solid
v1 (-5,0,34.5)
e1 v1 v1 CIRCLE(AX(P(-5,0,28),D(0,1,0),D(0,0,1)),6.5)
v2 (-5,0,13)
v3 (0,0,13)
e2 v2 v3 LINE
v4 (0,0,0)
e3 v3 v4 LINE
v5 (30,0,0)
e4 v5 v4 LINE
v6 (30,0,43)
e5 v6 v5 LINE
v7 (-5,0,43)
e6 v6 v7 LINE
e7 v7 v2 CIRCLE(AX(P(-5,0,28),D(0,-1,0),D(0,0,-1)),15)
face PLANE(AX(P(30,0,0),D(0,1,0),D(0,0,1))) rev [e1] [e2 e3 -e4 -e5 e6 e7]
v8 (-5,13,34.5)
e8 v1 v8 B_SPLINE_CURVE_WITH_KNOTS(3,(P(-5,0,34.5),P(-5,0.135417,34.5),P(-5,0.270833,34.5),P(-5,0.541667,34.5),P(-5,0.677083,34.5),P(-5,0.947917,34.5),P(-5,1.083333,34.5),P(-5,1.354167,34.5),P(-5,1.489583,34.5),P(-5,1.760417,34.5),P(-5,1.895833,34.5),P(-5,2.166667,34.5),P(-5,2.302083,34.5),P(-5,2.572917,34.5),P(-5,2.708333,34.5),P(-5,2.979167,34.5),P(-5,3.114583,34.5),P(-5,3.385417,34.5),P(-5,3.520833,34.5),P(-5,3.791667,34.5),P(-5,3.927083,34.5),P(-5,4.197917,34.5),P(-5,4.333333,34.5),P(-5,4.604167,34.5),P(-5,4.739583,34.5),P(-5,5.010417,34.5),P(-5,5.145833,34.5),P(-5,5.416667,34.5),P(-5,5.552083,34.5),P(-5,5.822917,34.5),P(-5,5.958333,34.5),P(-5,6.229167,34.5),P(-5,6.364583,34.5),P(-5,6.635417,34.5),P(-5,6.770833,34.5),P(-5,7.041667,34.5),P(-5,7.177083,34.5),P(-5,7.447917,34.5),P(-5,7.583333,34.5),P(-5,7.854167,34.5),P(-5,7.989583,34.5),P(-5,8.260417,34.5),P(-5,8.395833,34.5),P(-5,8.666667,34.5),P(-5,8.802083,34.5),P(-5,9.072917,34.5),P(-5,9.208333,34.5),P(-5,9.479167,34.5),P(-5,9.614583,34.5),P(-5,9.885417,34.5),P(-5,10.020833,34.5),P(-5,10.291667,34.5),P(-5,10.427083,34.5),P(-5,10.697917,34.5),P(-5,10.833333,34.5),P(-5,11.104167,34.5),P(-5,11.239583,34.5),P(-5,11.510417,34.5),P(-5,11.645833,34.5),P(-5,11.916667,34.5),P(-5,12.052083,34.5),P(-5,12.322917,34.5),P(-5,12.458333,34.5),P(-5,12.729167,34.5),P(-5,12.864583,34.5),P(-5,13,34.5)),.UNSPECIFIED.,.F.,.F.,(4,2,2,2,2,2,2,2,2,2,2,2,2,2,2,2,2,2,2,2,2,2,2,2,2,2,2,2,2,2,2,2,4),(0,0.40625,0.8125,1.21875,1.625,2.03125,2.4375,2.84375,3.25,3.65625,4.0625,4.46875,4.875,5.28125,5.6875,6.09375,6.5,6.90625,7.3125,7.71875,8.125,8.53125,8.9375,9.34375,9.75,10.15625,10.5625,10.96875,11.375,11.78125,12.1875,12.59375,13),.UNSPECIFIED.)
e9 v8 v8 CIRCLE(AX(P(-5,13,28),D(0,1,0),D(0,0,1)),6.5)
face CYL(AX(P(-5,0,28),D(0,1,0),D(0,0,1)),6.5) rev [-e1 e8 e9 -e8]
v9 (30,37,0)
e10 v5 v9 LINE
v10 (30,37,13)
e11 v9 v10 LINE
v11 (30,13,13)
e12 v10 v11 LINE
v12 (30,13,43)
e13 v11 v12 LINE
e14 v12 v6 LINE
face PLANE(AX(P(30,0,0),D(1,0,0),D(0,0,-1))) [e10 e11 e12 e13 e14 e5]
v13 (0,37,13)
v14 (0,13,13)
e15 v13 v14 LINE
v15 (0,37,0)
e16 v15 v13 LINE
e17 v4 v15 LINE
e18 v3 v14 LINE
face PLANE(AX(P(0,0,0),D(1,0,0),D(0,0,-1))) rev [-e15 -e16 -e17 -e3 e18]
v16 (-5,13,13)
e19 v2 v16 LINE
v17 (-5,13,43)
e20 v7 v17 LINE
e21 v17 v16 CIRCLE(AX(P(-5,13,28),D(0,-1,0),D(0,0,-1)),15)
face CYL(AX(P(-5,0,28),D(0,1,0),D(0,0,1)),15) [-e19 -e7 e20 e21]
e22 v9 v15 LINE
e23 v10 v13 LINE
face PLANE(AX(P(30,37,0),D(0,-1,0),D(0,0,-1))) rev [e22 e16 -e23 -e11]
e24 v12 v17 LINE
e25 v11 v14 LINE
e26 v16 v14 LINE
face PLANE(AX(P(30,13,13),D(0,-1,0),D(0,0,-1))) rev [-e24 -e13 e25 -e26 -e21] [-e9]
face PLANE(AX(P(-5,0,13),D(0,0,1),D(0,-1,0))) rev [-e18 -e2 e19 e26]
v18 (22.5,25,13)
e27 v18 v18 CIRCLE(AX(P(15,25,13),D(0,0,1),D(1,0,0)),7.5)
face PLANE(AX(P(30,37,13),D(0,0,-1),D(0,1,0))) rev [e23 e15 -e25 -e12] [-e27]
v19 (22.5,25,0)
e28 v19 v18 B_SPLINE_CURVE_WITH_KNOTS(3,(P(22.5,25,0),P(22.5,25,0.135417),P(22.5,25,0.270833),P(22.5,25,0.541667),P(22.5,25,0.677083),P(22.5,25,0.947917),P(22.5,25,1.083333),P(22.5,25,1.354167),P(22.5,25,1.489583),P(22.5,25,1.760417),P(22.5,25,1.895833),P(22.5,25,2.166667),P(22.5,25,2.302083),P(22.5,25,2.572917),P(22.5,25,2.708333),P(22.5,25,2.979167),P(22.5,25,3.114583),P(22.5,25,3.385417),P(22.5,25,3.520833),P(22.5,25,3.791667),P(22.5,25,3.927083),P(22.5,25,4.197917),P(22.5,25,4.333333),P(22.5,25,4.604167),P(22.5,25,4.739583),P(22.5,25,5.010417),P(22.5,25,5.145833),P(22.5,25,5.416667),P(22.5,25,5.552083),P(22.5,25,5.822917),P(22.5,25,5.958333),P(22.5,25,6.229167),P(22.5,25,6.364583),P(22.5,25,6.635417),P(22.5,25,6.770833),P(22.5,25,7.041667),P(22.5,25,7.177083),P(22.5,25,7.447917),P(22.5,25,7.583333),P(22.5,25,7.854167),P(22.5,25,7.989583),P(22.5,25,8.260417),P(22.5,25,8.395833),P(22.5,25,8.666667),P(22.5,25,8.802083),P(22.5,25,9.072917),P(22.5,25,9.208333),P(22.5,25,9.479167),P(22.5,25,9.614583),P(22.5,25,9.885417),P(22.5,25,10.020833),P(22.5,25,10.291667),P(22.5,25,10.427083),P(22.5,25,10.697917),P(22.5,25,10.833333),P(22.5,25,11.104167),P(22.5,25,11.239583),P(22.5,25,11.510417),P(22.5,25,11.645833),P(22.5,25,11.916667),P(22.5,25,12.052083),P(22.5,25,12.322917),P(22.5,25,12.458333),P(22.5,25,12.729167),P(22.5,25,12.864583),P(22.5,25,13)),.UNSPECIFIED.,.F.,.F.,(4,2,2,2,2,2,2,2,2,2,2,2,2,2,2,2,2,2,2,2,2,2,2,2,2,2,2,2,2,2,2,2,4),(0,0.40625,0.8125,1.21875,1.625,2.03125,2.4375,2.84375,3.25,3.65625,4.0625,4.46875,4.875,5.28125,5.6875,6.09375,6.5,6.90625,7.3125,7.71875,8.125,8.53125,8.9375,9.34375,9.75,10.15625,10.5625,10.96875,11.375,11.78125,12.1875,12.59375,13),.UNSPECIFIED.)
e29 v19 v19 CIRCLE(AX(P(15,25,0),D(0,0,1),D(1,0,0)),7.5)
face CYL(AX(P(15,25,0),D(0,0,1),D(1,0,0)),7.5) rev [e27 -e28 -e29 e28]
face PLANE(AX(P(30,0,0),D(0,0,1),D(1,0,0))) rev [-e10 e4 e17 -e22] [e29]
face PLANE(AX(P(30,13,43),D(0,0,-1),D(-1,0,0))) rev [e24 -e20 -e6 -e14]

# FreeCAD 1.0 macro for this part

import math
import FreeCAD as App
import Part
import Sketcher
Q = App.Units.Quantity


def add_polygon(sketch, points):
    """Adds a closed chain of lines whose ends are joined by coincident constraints."""
    first, n = sketch.GeometryCount, len(points)
    for a, b in zip(points, points[1:] + points[:1]):
        sketch.addGeometry(Part.LineSegment(App.Vector(*a, 0), App.Vector(*b, 0)), False)
    for i in range(n):
        sketch.addConstraint(Sketcher.Constraint("Coincident", first + i, 2, first + (i + 1) % n, 1))

doc = App.newDocument("Part")
body = doc.addObject("PartDesign::Body", "Body")

# Sketch on YZ plane
sketch1 = body.newObject("Sketcher::SketchObject", "Sketch")
sketch1.AttachmentSupport = (doc.getObject("YZ_Plane"), [""])
sketch1.MapMode = "FlatFace"
add_polygon(sketch1, [(0, 0), (37, 0), (37, 13), (13, 13), (13, 43), (0, 43)])  # lines 0-5
sketch1.addConstraint(Sketcher.Constraint("Horizontal", 0))
sketch1.addConstraint(Sketcher.Constraint("Vertical", 1))
sketch1.addConstraint(Sketcher.Constraint("Horizontal", 2))
sketch1.addConstraint(Sketcher.Constraint("Vertical", 3))
sketch1.addConstraint(Sketcher.Constraint("Horizontal", 4))
sketch1.addConstraint(Sketcher.Constraint("Vertical", 5))
sketch1.addConstraint(Sketcher.Constraint("Coincident", 5, 2, -1, 1))
sketch1.addConstraint(Sketcher.Constraint("Equal", 4, 1))
sketch1.addConstraint(Sketcher.Constraint("DistanceX", 0, 1, 0, 2, Q("37 mm")))
sketch1.addConstraint(Sketcher.Constraint("DistanceX", 2, 2, 2, 1, Q("24 mm")))
sketch1.addConstraint(Sketcher.Constraint("DistanceY", 3, 1, 3, 2, Q("30 mm")))
pad1 = body.newObject("PartDesign::Pad", "Pad")
pad1.Profile = sketch1
pad1.Length = 30

# Sketch on XZ plane
sketch2 = body.newObject("Sketcher::SketchObject", "Sketch001")
sketch2.AttachmentSupport = (doc.getObject("XZ_Plane"), [""])
sketch2.MapMode = "FlatFace"
sketch2.AttachmentOffset = App.Placement(App.Vector(0, 0, -13), App.Rotation())
sketch2.addGeometry(Part.LineSegment(App.Vector(0, 43, 0), App.Vector(0, 13, 0)), False)
sketch2.addGeometry(Part.LineSegment(App.Vector(0, 13, 0), App.Vector(-5, 13, 0)), False)
sketch2.addGeometry(Part.ArcOfCircle(Part.Circle(App.Vector(-5, 28, 0), App.Vector(0, 0, 1), 15), math.radians(90), math.radians(270)), False)
sketch2.addGeometry(Part.LineSegment(App.Vector(-5, 43, 0), App.Vector(0, 43, 0)), False)
sketch2.addConstraint(Sketcher.Constraint("Coincident", 0, 2, 1, 1))
sketch2.addConstraint(Sketcher.Constraint("Tangent", 1, 2, 2, 2))
sketch2.addConstraint(Sketcher.Constraint("Tangent", 2, 1, 3, 1))
sketch2.addConstraint(Sketcher.Constraint("Coincident", 3, 2, 0, 1))
sketch2.addConstraint(Sketcher.Constraint("Vertical", 0))
sketch2.addConstraint(Sketcher.Constraint("Horizontal", 1))
sketch2.addConstraint(Sketcher.Constraint("Horizontal", 3))
sketch2.addConstraint(Sketcher.Constraint("PointOnObject", 0, 2, -2))
sketch2.addConstraint(Sketcher.Constraint("Radius", 2, Q("15 mm")))
sketch2.addConstraint(Sketcher.Constraint("DistanceX", 1, 2, 1, 1, Q("5 mm")))
sketch2.addConstraint(Sketcher.Constraint("DistanceY", -1, 1, 2, 3, Q("28 mm")))
pad2 = body.newObject("PartDesign::Pad", "Pad001")
pad2.Profile = sketch2
pad2.Length = 13

# Sketch on XZ plane
sketch3 = body.newObject("Sketcher::SketchObject", "Sketch002")
sketch3.AttachmentSupport = (doc.getObject("XZ_Plane"), [""])
sketch3.MapMode = "FlatFace"
sketch3.AttachmentOffset = App.Placement(App.Vector(0, 0, -13), App.Rotation())
sketch3.addGeometry(Part.Circle(App.Vector(-5, 28, 0), App.Vector(0, 0, 1), 6), False)
sketch3.addConstraint(Sketcher.Constraint("Diameter", 0, Q("13 mm")))
sketch3.addConstraint(Sketcher.Constraint("DistanceX", 0, 3, -1, 1, Q("5 mm")))
sketch3.addConstraint(Sketcher.Constraint("DistanceY", -1, 1, 0, 3, Q("28 mm")))
pocket1 = body.newObject("PartDesign::Pocket", "Pocket")
pocket1.Profile = sketch3
pocket1.Length = 13
pocket1.Reversed = True

# Sketch on XY plane
sketch4 = body.newObject("Sketcher::SketchObject", "Sketch003")
sketch4.AttachmentSupport = (doc.getObject("XY_Plane"), [""])
sketch4.MapMode = "FlatFace"
sketch4.AttachmentOffset = App.Placement(App.Vector(0, 0, 13), App.Rotation())
sketch4.addGeometry(Part.Circle(App.Vector(15, 25, 0), App.Vector(0, 0, 1), 8), False)
sketch4.addConstraint(Sketcher.Constraint("Diameter", 0, Q("15 mm")))
sketch4.addConstraint(Sketcher.Constraint("DistanceX", -1, 1, 0, 3, Q("15 mm")))
sketch4.addConstraint(Sketcher.Constraint("DistanceY", -1, 1, 0, 3, Q("25 mm")))
pocket2 = body.newObject("PartDesign::Pocket", "Pocket001")
pocket2.Profile = sketch4
pocket2.Length = 13

doc.recompute()
